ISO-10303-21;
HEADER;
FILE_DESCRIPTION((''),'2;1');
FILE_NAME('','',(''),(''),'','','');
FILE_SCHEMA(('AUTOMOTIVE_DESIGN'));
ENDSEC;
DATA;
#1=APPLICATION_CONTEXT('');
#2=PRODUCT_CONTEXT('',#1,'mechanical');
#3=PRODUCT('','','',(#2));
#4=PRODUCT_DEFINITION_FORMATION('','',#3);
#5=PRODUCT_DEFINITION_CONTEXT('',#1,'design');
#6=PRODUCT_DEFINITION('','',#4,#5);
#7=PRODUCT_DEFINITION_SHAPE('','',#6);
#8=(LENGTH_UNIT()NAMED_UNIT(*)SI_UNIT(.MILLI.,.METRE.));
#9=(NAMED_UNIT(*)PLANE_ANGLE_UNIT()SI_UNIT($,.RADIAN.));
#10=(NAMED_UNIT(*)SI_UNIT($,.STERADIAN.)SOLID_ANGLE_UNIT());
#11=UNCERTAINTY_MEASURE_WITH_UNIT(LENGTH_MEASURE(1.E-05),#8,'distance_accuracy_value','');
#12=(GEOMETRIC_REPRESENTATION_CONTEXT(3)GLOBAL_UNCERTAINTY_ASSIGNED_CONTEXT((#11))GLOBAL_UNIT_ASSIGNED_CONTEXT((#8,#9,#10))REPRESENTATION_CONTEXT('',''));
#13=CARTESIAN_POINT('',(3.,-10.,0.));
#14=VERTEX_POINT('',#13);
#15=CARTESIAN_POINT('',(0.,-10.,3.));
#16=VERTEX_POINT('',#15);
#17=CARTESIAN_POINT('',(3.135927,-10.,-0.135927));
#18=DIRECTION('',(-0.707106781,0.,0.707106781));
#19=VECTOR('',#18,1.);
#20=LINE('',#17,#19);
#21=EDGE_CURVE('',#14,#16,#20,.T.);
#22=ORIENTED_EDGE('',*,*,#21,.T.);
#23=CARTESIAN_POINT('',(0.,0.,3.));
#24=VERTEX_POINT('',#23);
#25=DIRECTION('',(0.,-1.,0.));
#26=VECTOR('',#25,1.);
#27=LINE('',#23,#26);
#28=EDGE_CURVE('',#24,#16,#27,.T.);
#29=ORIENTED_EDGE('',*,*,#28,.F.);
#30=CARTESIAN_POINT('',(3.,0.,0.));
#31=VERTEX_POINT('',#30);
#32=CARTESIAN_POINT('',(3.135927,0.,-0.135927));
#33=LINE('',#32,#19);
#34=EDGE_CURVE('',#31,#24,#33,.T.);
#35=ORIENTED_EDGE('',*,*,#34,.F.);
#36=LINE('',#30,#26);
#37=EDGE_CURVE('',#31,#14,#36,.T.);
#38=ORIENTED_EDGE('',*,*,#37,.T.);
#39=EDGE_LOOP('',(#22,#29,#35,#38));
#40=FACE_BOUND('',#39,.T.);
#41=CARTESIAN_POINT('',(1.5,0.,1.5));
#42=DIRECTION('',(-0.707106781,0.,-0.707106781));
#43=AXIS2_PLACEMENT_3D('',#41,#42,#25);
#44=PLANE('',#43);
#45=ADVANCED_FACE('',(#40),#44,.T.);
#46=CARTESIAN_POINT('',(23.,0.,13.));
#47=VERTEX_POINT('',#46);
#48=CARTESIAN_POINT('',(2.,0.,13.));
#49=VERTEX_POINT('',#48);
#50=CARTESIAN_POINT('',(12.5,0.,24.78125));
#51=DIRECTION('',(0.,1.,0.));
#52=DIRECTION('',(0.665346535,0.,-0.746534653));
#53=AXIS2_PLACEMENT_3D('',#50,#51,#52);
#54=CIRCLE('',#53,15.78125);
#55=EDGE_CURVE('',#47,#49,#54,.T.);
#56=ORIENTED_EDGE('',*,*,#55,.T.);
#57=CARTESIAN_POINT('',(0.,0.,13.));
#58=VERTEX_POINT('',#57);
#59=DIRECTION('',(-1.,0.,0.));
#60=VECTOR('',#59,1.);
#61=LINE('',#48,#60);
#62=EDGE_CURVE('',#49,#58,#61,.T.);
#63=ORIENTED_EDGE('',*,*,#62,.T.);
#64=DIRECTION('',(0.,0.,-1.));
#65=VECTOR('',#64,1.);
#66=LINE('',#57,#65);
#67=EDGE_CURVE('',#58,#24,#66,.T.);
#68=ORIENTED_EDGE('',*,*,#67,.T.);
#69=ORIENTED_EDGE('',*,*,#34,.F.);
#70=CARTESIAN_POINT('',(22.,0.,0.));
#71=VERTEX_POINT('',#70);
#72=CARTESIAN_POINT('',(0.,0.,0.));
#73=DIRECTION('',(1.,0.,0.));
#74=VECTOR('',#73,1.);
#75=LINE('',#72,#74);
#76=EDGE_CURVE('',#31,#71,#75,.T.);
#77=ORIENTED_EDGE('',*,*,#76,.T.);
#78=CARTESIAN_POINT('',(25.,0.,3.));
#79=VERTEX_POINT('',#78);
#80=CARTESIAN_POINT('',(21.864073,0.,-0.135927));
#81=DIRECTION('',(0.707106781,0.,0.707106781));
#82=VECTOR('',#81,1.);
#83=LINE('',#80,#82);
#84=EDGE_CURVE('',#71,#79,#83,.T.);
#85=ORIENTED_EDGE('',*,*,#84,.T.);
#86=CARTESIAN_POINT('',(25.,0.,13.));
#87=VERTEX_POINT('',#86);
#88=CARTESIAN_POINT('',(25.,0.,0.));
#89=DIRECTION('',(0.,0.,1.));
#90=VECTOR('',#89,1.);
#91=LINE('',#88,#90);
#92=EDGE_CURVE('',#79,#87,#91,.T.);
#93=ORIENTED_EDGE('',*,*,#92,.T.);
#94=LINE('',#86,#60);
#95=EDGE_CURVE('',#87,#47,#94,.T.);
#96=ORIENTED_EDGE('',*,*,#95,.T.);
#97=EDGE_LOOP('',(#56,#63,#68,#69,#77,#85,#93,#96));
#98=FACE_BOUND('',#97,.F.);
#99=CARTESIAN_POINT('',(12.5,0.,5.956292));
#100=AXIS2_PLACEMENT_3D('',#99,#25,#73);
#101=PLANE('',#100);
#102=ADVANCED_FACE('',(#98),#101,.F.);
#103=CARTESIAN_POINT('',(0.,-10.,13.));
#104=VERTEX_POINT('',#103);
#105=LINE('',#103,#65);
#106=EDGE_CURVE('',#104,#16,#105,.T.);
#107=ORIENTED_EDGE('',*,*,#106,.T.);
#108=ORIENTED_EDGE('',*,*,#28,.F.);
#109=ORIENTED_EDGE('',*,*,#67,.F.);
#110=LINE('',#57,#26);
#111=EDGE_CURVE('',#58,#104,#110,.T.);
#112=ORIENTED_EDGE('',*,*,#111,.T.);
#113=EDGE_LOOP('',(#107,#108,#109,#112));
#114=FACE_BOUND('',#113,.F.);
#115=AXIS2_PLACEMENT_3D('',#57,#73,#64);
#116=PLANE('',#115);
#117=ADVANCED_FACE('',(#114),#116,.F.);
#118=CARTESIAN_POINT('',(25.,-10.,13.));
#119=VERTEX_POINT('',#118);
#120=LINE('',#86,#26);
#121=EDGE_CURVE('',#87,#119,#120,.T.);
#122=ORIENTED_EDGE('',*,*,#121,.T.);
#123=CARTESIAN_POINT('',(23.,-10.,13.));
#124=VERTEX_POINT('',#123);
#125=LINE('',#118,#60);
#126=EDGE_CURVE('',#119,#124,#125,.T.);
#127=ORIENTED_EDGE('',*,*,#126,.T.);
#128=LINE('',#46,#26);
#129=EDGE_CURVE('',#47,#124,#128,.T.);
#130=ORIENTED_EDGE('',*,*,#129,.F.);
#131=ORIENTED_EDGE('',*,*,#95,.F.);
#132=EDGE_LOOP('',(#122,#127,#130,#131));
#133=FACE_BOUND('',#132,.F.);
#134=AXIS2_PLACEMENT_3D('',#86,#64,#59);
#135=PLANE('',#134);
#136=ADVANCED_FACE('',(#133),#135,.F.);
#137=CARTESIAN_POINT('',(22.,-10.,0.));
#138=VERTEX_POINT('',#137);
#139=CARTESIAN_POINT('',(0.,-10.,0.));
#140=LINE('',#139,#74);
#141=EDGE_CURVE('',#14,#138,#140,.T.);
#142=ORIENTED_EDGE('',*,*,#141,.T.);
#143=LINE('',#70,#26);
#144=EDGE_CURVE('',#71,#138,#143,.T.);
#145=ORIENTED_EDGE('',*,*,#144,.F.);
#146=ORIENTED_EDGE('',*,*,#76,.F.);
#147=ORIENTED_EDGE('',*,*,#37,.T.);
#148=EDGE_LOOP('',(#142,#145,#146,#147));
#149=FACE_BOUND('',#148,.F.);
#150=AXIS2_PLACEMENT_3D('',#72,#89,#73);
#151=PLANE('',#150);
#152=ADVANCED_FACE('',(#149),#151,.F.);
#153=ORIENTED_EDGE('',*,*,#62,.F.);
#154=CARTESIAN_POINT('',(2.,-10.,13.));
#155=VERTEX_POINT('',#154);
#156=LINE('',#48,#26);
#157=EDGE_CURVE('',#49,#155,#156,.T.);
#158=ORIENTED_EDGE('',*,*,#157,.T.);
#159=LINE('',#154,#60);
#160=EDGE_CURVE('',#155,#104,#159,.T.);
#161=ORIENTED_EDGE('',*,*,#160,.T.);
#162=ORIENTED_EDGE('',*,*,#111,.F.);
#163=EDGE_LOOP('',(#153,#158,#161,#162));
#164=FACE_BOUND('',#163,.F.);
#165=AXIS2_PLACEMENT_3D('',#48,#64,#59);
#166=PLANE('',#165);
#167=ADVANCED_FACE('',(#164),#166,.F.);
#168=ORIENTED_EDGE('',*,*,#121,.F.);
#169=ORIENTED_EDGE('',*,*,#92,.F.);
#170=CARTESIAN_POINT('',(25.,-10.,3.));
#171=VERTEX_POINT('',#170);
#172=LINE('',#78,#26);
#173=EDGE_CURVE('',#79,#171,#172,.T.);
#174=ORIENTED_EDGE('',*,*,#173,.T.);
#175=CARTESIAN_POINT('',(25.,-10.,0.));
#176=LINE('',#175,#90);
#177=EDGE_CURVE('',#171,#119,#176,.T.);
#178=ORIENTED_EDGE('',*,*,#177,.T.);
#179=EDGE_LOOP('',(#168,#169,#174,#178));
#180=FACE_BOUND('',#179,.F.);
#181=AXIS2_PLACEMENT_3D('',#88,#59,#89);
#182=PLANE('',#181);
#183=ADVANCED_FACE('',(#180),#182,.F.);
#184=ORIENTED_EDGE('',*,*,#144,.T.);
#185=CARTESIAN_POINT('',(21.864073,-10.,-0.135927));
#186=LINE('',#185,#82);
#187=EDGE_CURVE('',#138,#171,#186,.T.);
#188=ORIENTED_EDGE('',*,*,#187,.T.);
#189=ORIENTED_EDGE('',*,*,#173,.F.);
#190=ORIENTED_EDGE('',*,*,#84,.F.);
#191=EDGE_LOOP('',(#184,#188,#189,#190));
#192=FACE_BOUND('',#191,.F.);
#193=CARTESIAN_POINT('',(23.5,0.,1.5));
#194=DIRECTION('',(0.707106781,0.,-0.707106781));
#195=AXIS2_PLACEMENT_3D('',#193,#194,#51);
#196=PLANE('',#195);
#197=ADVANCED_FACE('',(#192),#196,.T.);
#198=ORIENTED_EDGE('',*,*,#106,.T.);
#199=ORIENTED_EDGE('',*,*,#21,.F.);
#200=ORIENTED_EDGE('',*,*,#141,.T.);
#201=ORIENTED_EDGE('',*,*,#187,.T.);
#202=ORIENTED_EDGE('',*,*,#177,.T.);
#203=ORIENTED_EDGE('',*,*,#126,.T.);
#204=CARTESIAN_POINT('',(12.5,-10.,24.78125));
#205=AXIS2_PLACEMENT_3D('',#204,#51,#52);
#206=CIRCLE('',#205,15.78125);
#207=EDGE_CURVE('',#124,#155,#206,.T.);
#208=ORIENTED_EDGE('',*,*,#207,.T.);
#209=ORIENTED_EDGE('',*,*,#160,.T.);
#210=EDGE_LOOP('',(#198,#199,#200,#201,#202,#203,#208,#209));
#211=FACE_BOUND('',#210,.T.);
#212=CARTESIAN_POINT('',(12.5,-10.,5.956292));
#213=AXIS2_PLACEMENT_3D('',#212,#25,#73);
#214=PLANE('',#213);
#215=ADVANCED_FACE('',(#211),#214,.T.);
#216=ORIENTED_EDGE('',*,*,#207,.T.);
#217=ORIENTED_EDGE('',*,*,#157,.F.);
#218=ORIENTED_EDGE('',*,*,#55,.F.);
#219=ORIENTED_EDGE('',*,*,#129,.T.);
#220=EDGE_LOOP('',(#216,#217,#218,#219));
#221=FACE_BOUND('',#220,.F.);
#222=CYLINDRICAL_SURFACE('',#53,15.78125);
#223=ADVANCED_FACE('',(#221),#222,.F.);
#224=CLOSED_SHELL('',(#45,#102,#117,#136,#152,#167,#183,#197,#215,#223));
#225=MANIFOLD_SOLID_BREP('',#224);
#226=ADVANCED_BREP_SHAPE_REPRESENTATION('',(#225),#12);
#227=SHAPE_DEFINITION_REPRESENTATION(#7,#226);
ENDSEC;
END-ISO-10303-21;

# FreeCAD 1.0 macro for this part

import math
import FreeCAD as App
import Part
import Sketcher

V = App.Vector


def edges_at(feature, points):
    """Names of the edges that pass closest to the given points."""
    edges = feature.Shape.Edges
    near = lambda p: min(range(len(edges)), key=lambda i: edges[i].distToShape(Part.Vertex(*p))[0])
    return sorted({f"Edge{near(p) + 1}" for p in points})

doc = App.newDocument("Part")
body = doc.addObject("PartDesign::Body", "Body")

# Sketch on XZ plane
sketch1 = body.newObject("Sketcher::SketchObject", "Sketch")
sketch1.AttachmentSupport = (doc.getObject("XZ_Plane"), [""])
sketch1.MapMode = "FlatFace"
sketch1.addGeometry([
    Part.LineSegment(V(2, 13, 0), V(0, 13, 0)),  # 0
    Part.LineSegment(V(0, 13, 0), V(0, 0, 0)),  # 1
    Part.LineSegment(V(0, 0, 0), V(25, 0, 0)),  # 2
    Part.LineSegment(V(25, 0, 0), V(25, 13, 0)),  # 3
    Part.LineSegment(V(25, 13, 0), V(23, 13, 0)),  # 4
    Part.ArcOfCircle(Part.Circle(V(12.5, 24.8, 0), V(0, 0, 1), 15.8), math.radians(-132), math.radians(-48)),  # 5
], False)
sketch1.addConstraint([
    Sketcher.Constraint("Coincident", 0, 2, 1, 1),
    Sketcher.Constraint("Coincident", 1, 2, 2, 1),
    Sketcher.Constraint("Coincident", 2, 2, 3, 1),
    Sketcher.Constraint("Coincident", 3, 2, 4, 1),
    Sketcher.Constraint("Coincident", 4, 2, 5, 2),
    Sketcher.Constraint("Coincident", 5, 1, 0, 1),
    Sketcher.Constraint("Horizontal", 0),
    Sketcher.Constraint("Vertical", 1),
    Sketcher.Constraint("Horizontal", 2),
    Sketcher.Constraint("Vertical", 3),
    Sketcher.Constraint("Horizontal", 4),
    Sketcher.Constraint("Coincident", 1, 2, -1, 1),
    Sketcher.Constraint("Horizontal", 0, 2, 3, 2),
    Sketcher.Constraint("Equal", 0, 4),
    Sketcher.Constraint("DistanceX", 0, 2, 0, 1, 2.0),
    Sketcher.Constraint("DistanceX", 2, 1, 2, 2, 25.0),
    Sketcher.Constraint("DistanceY", 1, 2, 1, 1, 13.0),
    Sketcher.Constraint("Radius", 5, 15.78125),
])
pad1 = body.newObject("PartDesign::Pad", "Pad")
pad1.Profile = sketch1
pad1.Length = 10
doc.recompute()

chamfer = body.newObject("PartDesign::Chamfer", "Chamfer")
chamfer.Base = (pad1, edges_at(pad1, [(25, -5, 0)]))
chamfer.Size = 3
doc.recompute()

chamfer2 = body.newObject("PartDesign::Chamfer", "Chamfer001")
chamfer2.Base = (chamfer, edges_at(chamfer, [(0, -5, 0)]))
chamfer2.Size = 3

doc.recompute()
